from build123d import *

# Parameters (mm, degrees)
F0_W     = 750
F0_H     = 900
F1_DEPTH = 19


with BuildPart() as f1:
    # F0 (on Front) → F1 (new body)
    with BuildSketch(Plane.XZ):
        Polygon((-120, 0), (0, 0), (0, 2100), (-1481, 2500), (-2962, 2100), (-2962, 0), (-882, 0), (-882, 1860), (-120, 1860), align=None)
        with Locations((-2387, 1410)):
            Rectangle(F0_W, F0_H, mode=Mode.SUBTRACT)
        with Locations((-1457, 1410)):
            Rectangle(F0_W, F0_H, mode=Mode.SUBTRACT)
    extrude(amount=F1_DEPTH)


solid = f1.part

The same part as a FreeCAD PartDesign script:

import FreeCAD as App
import Part
import Sketcher

V = App.Vector
Q = App.Units.Quantity


def add_polygon(sketch, points):
    """Adds a closed chain of lines whose ends are joined by coincident constraints."""
    first, n = sketch.GeometryCount, len(points)
    for a, b in zip(points, points[1:] + points[:1]):
        sketch.addGeometry(Part.LineSegment(App.Vector(*a, 0), App.Vector(*b, 0)), False)
    for i in range(n):
        sketch.addConstraint(Sketcher.Constraint("Coincident", first + i, 2, first + (i + 1) % n, 1))

doc = App.newDocument("Part")
params = doc.addObject("Spreadsheet::Sheet", "Params")
for row, (alias, value) in enumerate([
    ("sketch1_width", "120 mm"),
    ("sketch1_width2", "2080 mm"),
    ("sketch1_width3", "762 mm"),
    ("sketch1_width4", "750 mm"),
    ("sketch1_height", "2100 mm"),
    ("pad1_length", "19 mm"),
], start=1):
    params.set(f"A{row}", alias)
    params.set(f"B{row}", "=" + value)
    params.setAlias(f"B{row}", alias)

body = doc.addObject("PartDesign::Body", "Body")

# Sketch on XZ plane
sketch1 = body.newObject("Sketcher::SketchObject", "Sketch")
sketch1.AttachmentSupport = (doc.getObject("XZ_Plane"), [""])
sketch1.MapMode = "FlatFace"
add_polygon(sketch1, [(-120, 0), (0, 0), (0, 2100), (-1481, 2500), (-2962, 2100), (-2962, 0), (-882, 0), (-882, 1860), (-120, 1860)])  # lines 0-8
add_polygon(sketch1, [(-2012, 960), (-2762, 960), (-2762, 1860), (-2012, 1860)])  # lines 9-12
add_polygon(sketch1, [(-1082, 960), (-1832, 960), (-1832, 1860), (-1082, 1860)])  # lines 13-16
sketch1.addConstraint([
    Sketcher.Constraint("Horizontal", 0),
    Sketcher.Constraint("Vertical", 1),
    Sketcher.Constraint("Vertical", 4),
    Sketcher.Constraint("Horizontal", 5),
    Sketcher.Constraint("Vertical", 6),
    Sketcher.Constraint("Horizontal", 7),
    Sketcher.Constraint("Vertical", 8),
    Sketcher.Constraint("Horizontal", 9),
    Sketcher.Constraint("Vertical", 10),
    Sketcher.Constraint("Horizontal", 11),
    Sketcher.Constraint("Vertical", 12),
    Sketcher.Constraint("Horizontal", 13),
    Sketcher.Constraint("Vertical", 14),
    Sketcher.Constraint("Horizontal", 15),
    Sketcher.Constraint("Vertical", 16),
    Sketcher.Constraint("Coincident", 0, 2, -1, 1),
    Sketcher.Constraint("PointOnObject", 4, 2, -1),
    Sketcher.Constraint("Horizontal", 1, 2, 3, 2),
    Sketcher.Constraint("Horizontal", 7, 2, 10, 2),
    Sketcher.Constraint("Horizontal", 12, 2, 13, 2),
    Sketcher.Constraint("Horizontal", 11, 2, 14, 2),
    Sketcher.Constraint("Equal", 11, 13),
    Sketcher.Constraint("Equal", 2, 3),
    Sketcher.Constraint("DistanceX", 0, 1, 0, 2, Q("120 mm")),
    Sketcher.Constraint("DistanceX", 5, 1, 5, 2, Q("2080 mm")),
    Sketcher.Constraint("DistanceX", 7, 1, 7, 2, Q("762 mm")),
    Sketcher.Constraint("DistanceX", 9, 2, 9, 1, Q("750 mm")),
    Sketcher.Constraint("DistanceY", 1, 1, 1, 2, Q("2100 mm")),
    Sketcher.Constraint("DistanceY", 6, 1, 6, 2, Q("1860 mm")),
    Sketcher.Constraint("DistanceY", 10, 1, 10, 2, Q("900 mm")),
    Sketcher.Constraint("DistanceY", -1, 1, 2, 2, Q("2500 mm")),
    Sketcher.Constraint("DistanceX", 9, 2, -1, 1, Q("2762 mm")),
    Sketcher.Constraint("DistanceX", 13, 2, -1, 1, Q("1832 mm")),
])
sketch1.setExpression("Constraints[40]", "Params.sketch1_width")
sketch1.setExpression("Constraints[41]", "Params.sketch1_width2")
sketch1.setExpression("Constraints[42]", "Params.sketch1_width3")
sketch1.setExpression("Constraints[43]", "Params.sketch1_width4")
sketch1.setExpression("Constraints[44]", "Params.sketch1_height")
pad1 = body.newObject("PartDesign::Pad", "Pad")
pad1.Profile = sketch1
pad1.setExpression("Length", "Params.pad1_length")

doc.recompute()
